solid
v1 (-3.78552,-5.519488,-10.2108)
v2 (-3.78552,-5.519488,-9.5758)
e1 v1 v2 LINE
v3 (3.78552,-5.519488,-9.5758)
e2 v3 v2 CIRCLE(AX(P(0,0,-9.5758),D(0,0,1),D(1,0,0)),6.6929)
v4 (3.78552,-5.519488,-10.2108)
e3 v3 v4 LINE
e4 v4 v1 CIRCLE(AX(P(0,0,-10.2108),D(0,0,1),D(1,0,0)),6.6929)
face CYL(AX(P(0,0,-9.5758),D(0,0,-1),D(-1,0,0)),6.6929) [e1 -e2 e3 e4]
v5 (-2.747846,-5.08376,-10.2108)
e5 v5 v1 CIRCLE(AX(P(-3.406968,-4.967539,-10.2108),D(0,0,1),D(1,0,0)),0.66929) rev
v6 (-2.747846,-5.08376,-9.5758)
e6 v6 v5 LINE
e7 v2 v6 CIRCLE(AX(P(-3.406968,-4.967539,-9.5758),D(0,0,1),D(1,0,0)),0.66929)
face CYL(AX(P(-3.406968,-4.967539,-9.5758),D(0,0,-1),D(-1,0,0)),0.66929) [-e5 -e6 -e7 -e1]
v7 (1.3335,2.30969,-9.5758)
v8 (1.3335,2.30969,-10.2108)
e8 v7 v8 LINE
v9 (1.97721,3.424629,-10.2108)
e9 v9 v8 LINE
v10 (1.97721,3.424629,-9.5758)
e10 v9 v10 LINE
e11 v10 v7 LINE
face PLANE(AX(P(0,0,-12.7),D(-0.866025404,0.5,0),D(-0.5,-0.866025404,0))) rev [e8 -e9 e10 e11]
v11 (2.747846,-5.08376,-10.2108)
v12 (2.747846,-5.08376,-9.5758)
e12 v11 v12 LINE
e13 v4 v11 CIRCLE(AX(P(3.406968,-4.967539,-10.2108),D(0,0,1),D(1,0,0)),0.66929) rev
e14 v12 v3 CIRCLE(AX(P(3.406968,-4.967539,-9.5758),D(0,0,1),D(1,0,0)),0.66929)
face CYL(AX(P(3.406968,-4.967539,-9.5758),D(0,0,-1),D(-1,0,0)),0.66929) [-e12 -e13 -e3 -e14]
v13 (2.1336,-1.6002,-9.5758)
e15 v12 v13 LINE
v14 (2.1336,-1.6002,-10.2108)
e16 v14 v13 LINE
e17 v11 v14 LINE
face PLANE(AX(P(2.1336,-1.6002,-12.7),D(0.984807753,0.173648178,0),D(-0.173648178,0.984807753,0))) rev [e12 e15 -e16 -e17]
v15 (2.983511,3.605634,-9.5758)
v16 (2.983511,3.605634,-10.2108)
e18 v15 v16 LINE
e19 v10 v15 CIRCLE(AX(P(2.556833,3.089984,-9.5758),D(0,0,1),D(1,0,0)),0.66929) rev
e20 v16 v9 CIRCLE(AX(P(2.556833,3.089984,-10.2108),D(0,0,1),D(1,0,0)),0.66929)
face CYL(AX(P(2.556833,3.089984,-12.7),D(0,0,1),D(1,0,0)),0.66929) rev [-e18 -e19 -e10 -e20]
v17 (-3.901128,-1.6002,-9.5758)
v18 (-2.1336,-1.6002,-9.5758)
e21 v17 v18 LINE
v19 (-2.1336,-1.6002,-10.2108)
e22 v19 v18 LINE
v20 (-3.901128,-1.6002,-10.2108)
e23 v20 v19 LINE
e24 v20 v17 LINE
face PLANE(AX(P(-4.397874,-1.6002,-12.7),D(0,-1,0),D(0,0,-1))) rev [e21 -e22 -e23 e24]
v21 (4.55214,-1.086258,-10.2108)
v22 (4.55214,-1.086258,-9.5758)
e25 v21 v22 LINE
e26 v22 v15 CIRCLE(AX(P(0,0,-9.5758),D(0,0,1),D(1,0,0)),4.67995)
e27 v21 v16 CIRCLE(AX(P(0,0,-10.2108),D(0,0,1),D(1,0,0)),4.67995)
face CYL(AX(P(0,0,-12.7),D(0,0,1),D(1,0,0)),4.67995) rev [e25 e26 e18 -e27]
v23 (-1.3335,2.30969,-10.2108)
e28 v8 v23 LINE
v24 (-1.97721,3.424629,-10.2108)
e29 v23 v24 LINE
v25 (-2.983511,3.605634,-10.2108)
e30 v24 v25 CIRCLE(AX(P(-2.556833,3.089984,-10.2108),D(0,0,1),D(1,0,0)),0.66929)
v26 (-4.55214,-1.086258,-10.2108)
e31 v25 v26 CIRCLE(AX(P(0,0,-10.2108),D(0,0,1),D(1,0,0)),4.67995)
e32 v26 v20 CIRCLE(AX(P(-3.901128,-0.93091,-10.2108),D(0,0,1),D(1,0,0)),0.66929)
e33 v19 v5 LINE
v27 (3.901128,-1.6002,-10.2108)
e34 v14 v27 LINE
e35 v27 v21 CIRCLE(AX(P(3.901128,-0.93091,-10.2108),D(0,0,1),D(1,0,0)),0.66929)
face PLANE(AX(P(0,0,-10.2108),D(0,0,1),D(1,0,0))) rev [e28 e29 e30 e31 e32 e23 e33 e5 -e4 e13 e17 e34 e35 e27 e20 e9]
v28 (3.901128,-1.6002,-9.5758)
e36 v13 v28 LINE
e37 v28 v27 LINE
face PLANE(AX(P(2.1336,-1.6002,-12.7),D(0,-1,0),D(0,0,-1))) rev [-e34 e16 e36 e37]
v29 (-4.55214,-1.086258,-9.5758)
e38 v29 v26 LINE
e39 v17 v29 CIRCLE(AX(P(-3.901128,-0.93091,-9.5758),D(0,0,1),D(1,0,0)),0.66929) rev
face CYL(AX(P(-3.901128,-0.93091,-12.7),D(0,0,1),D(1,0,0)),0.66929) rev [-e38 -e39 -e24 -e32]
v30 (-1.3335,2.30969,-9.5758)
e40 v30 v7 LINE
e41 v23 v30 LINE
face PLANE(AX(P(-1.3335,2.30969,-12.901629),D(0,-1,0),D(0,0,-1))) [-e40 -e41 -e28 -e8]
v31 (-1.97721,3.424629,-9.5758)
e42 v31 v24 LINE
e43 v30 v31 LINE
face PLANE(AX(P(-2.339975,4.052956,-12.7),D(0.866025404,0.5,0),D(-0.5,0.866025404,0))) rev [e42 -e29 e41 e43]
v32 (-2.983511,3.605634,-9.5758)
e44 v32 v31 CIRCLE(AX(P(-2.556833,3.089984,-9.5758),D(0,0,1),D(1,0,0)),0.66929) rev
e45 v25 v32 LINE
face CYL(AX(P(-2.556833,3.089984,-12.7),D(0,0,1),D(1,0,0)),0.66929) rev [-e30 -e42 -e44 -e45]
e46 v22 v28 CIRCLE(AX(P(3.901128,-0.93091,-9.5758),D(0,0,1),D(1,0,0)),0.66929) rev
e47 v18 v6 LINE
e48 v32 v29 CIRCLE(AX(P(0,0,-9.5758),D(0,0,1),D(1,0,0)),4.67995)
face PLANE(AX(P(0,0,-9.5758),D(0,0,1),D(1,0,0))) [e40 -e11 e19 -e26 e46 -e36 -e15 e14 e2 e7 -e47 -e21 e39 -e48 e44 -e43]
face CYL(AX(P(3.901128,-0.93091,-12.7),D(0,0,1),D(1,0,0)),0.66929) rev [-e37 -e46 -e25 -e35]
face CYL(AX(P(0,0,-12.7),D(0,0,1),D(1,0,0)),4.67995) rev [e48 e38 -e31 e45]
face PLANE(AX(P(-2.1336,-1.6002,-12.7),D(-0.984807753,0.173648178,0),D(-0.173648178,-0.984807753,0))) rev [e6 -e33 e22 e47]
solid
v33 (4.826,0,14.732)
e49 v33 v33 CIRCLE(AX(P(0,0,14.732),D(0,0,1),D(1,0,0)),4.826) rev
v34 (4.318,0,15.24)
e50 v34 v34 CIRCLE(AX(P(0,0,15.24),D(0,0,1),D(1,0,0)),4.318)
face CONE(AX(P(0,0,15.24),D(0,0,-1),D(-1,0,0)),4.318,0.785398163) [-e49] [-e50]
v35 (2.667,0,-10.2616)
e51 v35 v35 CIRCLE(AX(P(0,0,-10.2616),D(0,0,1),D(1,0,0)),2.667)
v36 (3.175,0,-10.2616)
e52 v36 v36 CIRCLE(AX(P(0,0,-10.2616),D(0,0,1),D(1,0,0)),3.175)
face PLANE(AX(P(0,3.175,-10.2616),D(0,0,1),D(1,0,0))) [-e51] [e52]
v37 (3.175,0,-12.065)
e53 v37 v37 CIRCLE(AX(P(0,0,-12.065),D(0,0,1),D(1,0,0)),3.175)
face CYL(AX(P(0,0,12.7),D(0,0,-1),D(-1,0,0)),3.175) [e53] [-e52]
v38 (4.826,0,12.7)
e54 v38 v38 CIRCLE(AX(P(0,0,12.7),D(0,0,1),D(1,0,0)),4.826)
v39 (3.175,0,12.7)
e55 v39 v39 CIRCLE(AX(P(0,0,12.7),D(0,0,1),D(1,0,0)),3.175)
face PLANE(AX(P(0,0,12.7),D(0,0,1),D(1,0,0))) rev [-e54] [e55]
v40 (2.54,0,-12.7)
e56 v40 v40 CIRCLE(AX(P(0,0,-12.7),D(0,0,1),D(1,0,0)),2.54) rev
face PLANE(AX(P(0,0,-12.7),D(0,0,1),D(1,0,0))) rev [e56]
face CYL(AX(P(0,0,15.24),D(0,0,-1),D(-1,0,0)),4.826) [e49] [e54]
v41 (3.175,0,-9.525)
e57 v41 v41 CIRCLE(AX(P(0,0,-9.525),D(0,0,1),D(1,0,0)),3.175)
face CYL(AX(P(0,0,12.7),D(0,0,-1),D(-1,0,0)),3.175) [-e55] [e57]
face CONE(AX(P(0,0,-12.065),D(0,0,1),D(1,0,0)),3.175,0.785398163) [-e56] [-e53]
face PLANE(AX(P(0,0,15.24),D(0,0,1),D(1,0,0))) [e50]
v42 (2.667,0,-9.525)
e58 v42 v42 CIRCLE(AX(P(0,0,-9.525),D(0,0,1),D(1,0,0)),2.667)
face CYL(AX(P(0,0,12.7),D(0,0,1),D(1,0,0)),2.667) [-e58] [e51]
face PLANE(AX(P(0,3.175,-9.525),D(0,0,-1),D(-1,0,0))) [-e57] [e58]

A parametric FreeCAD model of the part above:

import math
import FreeCAD as App
import Part
import Sketcher

V = App.Vector
Q = App.Units.Quantity


def edges_at(feature, points):
    """Names of the edges that pass closest to the given points."""
    edges = feature.Shape.Edges
    near = lambda p: min(range(len(edges)), key=lambda i: edges[i].distToShape(Part.Vertex(*p))[0])
    return sorted({f"Edge{near(p) + 1}" for p in points})

doc = App.newDocument("Part")
body = doc.addObject("PartDesign::Body", "Body")

# Sketch on XY plane
sketch1 = body.newObject("Sketcher::SketchObject", "Sketch")
sketch1.AttachmentSupport = (doc.getObject("XY_Plane"), [""])
sketch1.MapMode = "FlatFace"
sketch1.addGeometry(Part.Circle(V(0, 0, 0), V(0, 0, 1), 3.2), False)
sketch1.addConstraint([
    Sketcher.Constraint("Coincident", 0, 3, -1, 1),
    Sketcher.Constraint("Diameter", 0, Q("0.25 in")),
])
pad1 = body.newObject("PartDesign::Pad", "Pad")
pad1.Profile = sketch1
pad1.Length = Q("1 in")
pad1.Midplane = True

# Sketch on YZ plane
sketch2 = body.newObject("Sketcher::SketchObject", "Sketch001")
sketch2.AttachmentSupport = (doc.getObject("YZ_Plane"), [""])
sketch2.MapMode = "FlatFace"
sketch2.addGeometry([
    Part.LineSegment(V(3.2, -9.5, 0), V(2.7, -9.5, 0)),
    Part.LineSegment(V(2.7, -9.5, 0), V(2.7, -10.3, 0)),
    Part.LineSegment(V(2.7, -10.3, 0), V(3.2, -10.3, 0)),
    Part.LineSegment(V(3.2, -10.3, 0), V(3.2, -9.5, 0)),
], False)
sketch2.addConstraint([
    Sketcher.Constraint("Coincident", 0, 2, 1, 1),
    Sketcher.Constraint("Coincident", 1, 2, 2, 1),
    Sketcher.Constraint("Coincident", 2, 2, 3, 1),
    Sketcher.Constraint("Coincident", 3, 2, 0, 1),
    Sketcher.Constraint("Horizontal", 0),
    Sketcher.Constraint("Vertical", 1),
    Sketcher.Constraint("Horizontal", 2),
    Sketcher.Constraint("Vertical", 3),
    Sketcher.Constraint("DistanceX", 0, 2, 0, 1, Q("0.02 in")),
    Sketcher.Constraint("DistanceY", 1, 2, 1, 1, Q("0.029 in")),
    Sketcher.Constraint("DistanceX", -1, 1, 0, 2, Q("0.105 in")),
    Sketcher.Constraint("DistanceY", 0, 2, -1, 1, Q("0.375 in")),
])
groove = body.newObject("PartDesign::Groove", "Groove")
groove.Profile = sketch2
groove.ReferenceAxis = (sketch2, ["V_Axis"])
groove.Angle = 360

# Sketch on XY plane
sketch3 = body.newObject("Sketcher::SketchObject", "Sketch002")
sketch3.AttachmentSupport = (doc.getObject("XY_Plane"), [""])
sketch3.MapMode = "FlatFace"
sketch3.AttachmentOffset = App.Placement(V(0, 0, 0.5 * 25.4), App.Rotation())
sketch3.addGeometry(Part.Circle(V(0, 0, 0), V(0, 0, 1), 4.8), False)
sketch3.addConstraint([
    Sketcher.Constraint("Coincident", 0, 3, -1, 1),
    Sketcher.Constraint("Diameter", 0, Q("0.38 in")),
])
pad2 = body.newObject("PartDesign::Pad", "Pad001")
pad2.Profile = sketch3
pad2.Length = Q("0.1 in")
doc.recompute()

chamfer = body.newObject("PartDesign::Chamfer", "Chamfer")
chamfer.Base = (pad2, edges_at(pad2, [(-4.826, 0, 15.24)]))
chamfer.Size = Q("0.02 in")
doc.recompute()

chamfer2 = body.newObject("PartDesign::Chamfer", "Chamfer001")
chamfer2.Base = (chamfer, edges_at(chamfer, [(-3.175, 0, -12.7)]))
chamfer2.Size = Q("0.025 in")
body2 = doc.addObject("PartDesign::Body", "Body001")

# Sketch on XY plane
sketch4 = body2.newObject("Sketcher::SketchObject", "Sketch003")
sketch4.AttachmentSupport = (doc.getObject("XY_Plane001"), [""])
sketch4.MapMode = "FlatFace"
sketch4.AttachmentOffset = App.Placement(V(0, 0, -0.3895 * 25.4), App.Rotation())
sketch4.addGeometry([
    Part.Circle(V(0, 0, 0), V(0, 0, 1), 6.7),
    Part.Circle(V(0, 0, 0), V(0, 0, 1), 2.7),
], False)
sketch4.addConstraint([
    Sketcher.Constraint("Coincident", 0, 3, -1, 1),
    Sketcher.Constraint("Coincident", 1, 3, -1, 1),
    Sketcher.Constraint("Diameter", 1, Q("0.21 in")),
    Sketcher.Constraint("Diameter", 0, Q("0.527 in")),
])
pad3 = body2.newObject("PartDesign::Pad", "Pad002")
pad3.Profile = sketch4
pad3.Length = Q("0.025 in")
pad3.Midplane = True

# Sketch on XY plane
sketch5 = body2.newObject("Sketcher::SketchObject", "Sketch004")
sketch5.AttachmentSupport = (doc.getObject("XY_Plane001"), [""])
sketch5.MapMode = "FlatFace"
sketch5.addGeometry([
    Part.LineSegment(V(0, 0, 0), V(-2.3, 4.1, 0)),  # 0
    Part.ArcOfCircle(Part.Circle(V(0, 0, 0), V(0, 0, 1), 4.7), math.radians(120), math.radians(200)),  # 1
    Part.LineSegment(V(-4.4, -1.6, 0), V(-2.1, -1.6, 0)),  # 2
    Part.LineSegment(V(-2.1, -1.6, 0), V(-2.9, -6, 0)),  # 3
    Part.ArcOfCircle(Part.Circle(V(0, 0, 0), V(0, 0, 1), 6.7), math.radians(-116), math.radians(-64)),  # 4
    Part.LineSegment(V(2.9, -6, 0), V(2.1, -1.6, 0)),  # 5
    Part.LineSegment(V(2.1, -1.6, 0), V(4.4, -1.6, 0)),  # 6
    Part.ArcOfCircle(Part.Circle(V(0, 0, 0), V(0, 0, 1), 4.7), math.radians(-20), math.radians(60)),  # 7
    Part.LineSegment(V(2.3, 4.1, 0), V(0, 0, 0)),  # 8
], False)
sketch5.addConstraint([
    Sketcher.Constraint("Coincident", 0, 2, 1, 1),
    Sketcher.Constraint("Coincident", 1, 2, 2, 1),
    Sketcher.Constraint("Coincident", 2, 2, 3, 1),
    Sketcher.Constraint("Coincident", 3, 2, 4, 1),
    Sketcher.Constraint("Coincident", 4, 2, 5, 1),
    Sketcher.Constraint("Coincident", 5, 2, 6, 1),
    Sketcher.Constraint("Coincident", 6, 2, 7, 1),
    Sketcher.Constraint("Coincident", 7, 2, 8, 1),
    Sketcher.Constraint("Coincident", 8, 2, 0, 1),
    Sketcher.Constraint("Horizontal", 2),
    Sketcher.Constraint("Horizontal", 6),
    Sketcher.Constraint("Coincident", 1, 3, -1, 1),
    Sketcher.Constraint("Coincident", 4, 3, -1, 1),
    Sketcher.Constraint("Coincident", 7, 3, -1, 1),
    Sketcher.Constraint("Coincident", 8, 2, -1, 1),
    Sketcher.Constraint("Equal", 1, 7),
    Sketcher.Constraint("Symmetric", 2, 2, 5, 2, -2),
    Sketcher.Constraint("Horizontal", 3, 2, 4, 2),
    Sketcher.Constraint("Horizontal", 0, 2, 7, 2),
    Sketcher.Constraint("Angle", 0, Q("120 deg")),
    Sketcher.Constraint("Angle", 3, Q("-100 deg")),
    Sketcher.Constraint("Radius", 4, Q("0.2635 in")),
    Sketcher.Constraint("DistanceY", 1, 2, -1, 1, Q("0.063 in")),
    Sketcher.Constraint("DistanceX", 2, 2, -1, 1, Q("0.084 in")),
    Sketcher.Constraint("Radius", 1, 4.67995),
])
pocket1 = body2.newObject("PartDesign::Pocket", "Pocket")
pocket1.Profile = sketch5
pocket1.Type = "ThroughAll"

# Sketch on XY plane
sketch6 = body2.newObject("Sketcher::SketchObject", "Sketch005")
sketch6.AttachmentSupport = (doc.getObject("XY_Plane001"), [""])
sketch6.MapMode = "FlatFace"
sketch6.AttachmentOffset = App.Placement(V(0, 0, -0.377 * 25.4), App.Rotation())
sketch6.addGeometry([
    Part.LineSegment(V(-1.3, 2.3, 0), V(1.3, 2.3, 0)),
    Part.ArcOfCircle(Part.Circle(V(0, 0, 0), V(0, 0, 1), 2.7), math.radians(60), math.radians(120)),
], False)
sketch6.addConstraint([
    Sketcher.Constraint("Coincident", 0, 1, 1, 2),
    Sketcher.Constraint("Coincident", 1, 1, 0, 2),
    Sketcher.Constraint("Horizontal", 0),
    Sketcher.Constraint("Coincident", 1, 3, -1, 1),
    Sketcher.Constraint("Radius", 1, Q("0.105 in")),
    Sketcher.Constraint("DistanceX", 0, 1, 0, 2, Q("0.105 in")),
])
pad4 = body2.newObject("PartDesign::Pad", "Pad003")
pad4.Profile = sketch6
pad4.Length = Q("0.025 in")
pad4.Reversed = True
doc.recompute()

fillet = body2.newObject("PartDesign::Fillet", "Fillet")
fillet.Base = (pad4, edges_at(pad4, [
    (2.34, 4.053, -9.893),
    (2.914, -6.025, -9.893),
    (-4.398, -1.6, -9.893),
    (4.398, -1.6, -9.893),
    (-2.914, -6.025, -9.893),
    (-2.34, 4.053, -9.893),
]))
fillet.Radius = 0.66929

doc.recompute()
